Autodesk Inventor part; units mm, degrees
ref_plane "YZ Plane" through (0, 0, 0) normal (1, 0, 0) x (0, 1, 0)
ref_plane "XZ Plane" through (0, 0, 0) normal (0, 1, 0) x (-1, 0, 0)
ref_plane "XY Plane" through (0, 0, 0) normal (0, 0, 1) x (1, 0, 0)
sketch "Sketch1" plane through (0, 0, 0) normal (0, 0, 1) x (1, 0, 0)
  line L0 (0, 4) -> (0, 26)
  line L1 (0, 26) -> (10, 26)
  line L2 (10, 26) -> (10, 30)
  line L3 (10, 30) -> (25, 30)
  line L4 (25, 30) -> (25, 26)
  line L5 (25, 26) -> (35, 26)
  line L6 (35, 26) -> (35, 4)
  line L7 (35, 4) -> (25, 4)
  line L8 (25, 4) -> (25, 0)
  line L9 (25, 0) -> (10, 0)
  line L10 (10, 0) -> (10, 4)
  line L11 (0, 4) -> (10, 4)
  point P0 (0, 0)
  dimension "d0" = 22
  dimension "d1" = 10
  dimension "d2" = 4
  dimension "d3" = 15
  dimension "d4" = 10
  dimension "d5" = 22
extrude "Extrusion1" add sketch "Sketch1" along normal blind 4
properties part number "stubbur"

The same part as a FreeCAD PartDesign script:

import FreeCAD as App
import Part
import Sketcher
from FreeCAD import Vector


def add_polygon(sketch, points):
    """Adds a closed chain of lines whose ends are joined by coincident constraints."""
    first, n = sketch.GeometryCount, len(points)
    for a, b in zip(points, points[1:] + points[:1]):
        sketch.addGeometry(Part.LineSegment(App.Vector(*a, 0), App.Vector(*b, 0)), False)
    for i in range(n):
        sketch.addConstraint(Sketcher.Constraint("Coincident", first + i, 2, first + (i + 1) % n, 1))

doc = App.newDocument("Part")
params = doc.addObject("Spreadsheet::Sheet", "Params")
for row, (alias, value) in enumerate([
    ("sketch1_width", "10 mm"),
    ("sketch1_width2", "15 mm"),
    ("sketch1_height", "22 mm"),
    ("sketch1_height2", "4 mm"),
    ("pad1_length", "4 mm"),
], start=1):
    params.set(f"A{row}", alias)
    params.set(f"B{row}", "=" + value)
    params.setAlias(f"B{row}", alias)

body = doc.addObject("PartDesign::Body", "Body")

# Sketch on XY plane
sketch1 = doc.addObject("Sketcher::SketchObject", "Sketch")
body.addObject(sketch1)
sketch1.AttachmentSupport = (doc.XY_Plane, [""])
sketch1.MapMode = "FlatFace"
add_polygon(sketch1, [(0, 26), (0, 4), (10, 4), (10, 0), (25, 0), (25, 4), (35, 4), (35, 26), (25, 26), (25, 30), (10, 30), (10, 26)])  # lines 0-11
sketch1.addConstraint(Sketcher.Constraint("Vertical", 0))
sketch1.addConstraint(Sketcher.Constraint("Horizontal", 1))
sketch1.addConstraint(Sketcher.Constraint("Vertical", 2))
sketch1.addConstraint(Sketcher.Constraint("Horizontal", 3))
sketch1.addConstraint(Sketcher.Constraint("Vertical", 4))
sketch1.addConstraint(Sketcher.Constraint("Horizontal", 5))
sketch1.addConstraint(Sketcher.Constraint("Vertical", 6))
sketch1.addConstraint(Sketcher.Constraint("Horizontal", 7))
sketch1.addConstraint(Sketcher.Constraint("Vertical", 8))
sketch1.addConstraint(Sketcher.Constraint("Horizontal", 9))
sketch1.addConstraint(Sketcher.Constraint("Vertical", 10))
sketch1.addConstraint(Sketcher.Constraint("Horizontal", 11))
sketch1.addConstraint(Sketcher.Constraint("PointOnObject", 0, 2, -2))
sketch1.addConstraint(Sketcher.Constraint("PointOnObject", 2, 2, -1))
sketch1.addConstraint(Sketcher.Constraint("Horizontal", 1, 2, 4, 2))
sketch1.addConstraint(Sketcher.Constraint("Horizontal", 7, 2, 10, 2))
sketch1.addConstraint(Sketcher.Constraint("Vertical", 4, 2, 7, 2))
sketch1.addConstraint(Sketcher.Constraint("Vertical", 2, 2, 9, 2))
sketch1.addConstraint(Sketcher.Constraint("Equal", 1, 5))
sketch1.addConstraint(Sketcher.Constraint("Equal", 4, 8))
sketch1.addConstraint(Sketcher.Constraint("DistanceX", 1, 1, 1, 2, 10.0))
sketch1.addConstraint(Sketcher.Constraint("DistanceX", 3, 1, 3, 2, 15.0))
sketch1.addConstraint(Sketcher.Constraint("DistanceY", 0, 2, 0, 1, 22.0))
sketch1.addConstraint(Sketcher.Constraint("DistanceY", 2, 2, 2, 1, 4.0))
sketch1.setExpression("Constraints[32]", "Params.sketch1_width")
sketch1.setExpression("Constraints[33]", "Params.sketch1_width2")
sketch1.setExpression("Constraints[34]", "Params.sketch1_height")
sketch1.setExpression("Constraints[35]", "Params.sketch1_height2")
pad1 = doc.addObject("PartDesign::Pad", "Pad")
body.addObject(pad1)
pad1.Profile = sketch1
pad1.setExpression("Length", "Params.pad1_length")

doc.recompute()
